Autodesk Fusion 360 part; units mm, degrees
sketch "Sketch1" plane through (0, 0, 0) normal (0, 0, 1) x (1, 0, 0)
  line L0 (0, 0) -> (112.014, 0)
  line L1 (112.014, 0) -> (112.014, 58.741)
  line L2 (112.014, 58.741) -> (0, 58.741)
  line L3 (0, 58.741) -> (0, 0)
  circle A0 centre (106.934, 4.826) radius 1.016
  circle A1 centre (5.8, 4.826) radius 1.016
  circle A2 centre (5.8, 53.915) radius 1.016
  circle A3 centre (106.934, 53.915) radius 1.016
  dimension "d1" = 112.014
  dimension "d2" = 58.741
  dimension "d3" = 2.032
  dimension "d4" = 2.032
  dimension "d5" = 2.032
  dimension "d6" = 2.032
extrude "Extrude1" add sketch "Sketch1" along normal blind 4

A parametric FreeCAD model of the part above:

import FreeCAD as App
import Part
import Sketcher
Q = App.Units.Quantity


def add_polygon(sketch, points):
    """Adds a closed chain of lines whose ends are joined by coincident constraints."""
    first, n = sketch.GeometryCount, len(points)
    for a, b in zip(points, points[1:] + points[:1]):
        sketch.addGeometry(Part.LineSegment(App.Vector(*a, 0), App.Vector(*b, 0)), False)
    for i in range(n):
        sketch.addConstraint(Sketcher.Constraint("Coincident", first + i, 2, first + (i + 1) % n, 1))

doc = App.newDocument("Part")
body = doc.addObject("PartDesign::Body", "Body")

sketch1 = doc.addObject("Sketcher::SketchObject", "Sketch")
body.addObject(sketch1)
sketch1.AttachmentSupport = (doc.XY_Plane, [""])
sketch1.MapMode = "FlatFace"
add_polygon(sketch1, [(0, 58.741), (0, 0), (112.014, 0), (112.014, 58.741)])
sketch1.addGeometry(Part.Circle(App.Vector(5.8, 4.826, 0), App.Vector(0, 0, 1), 1.016), False)
sketch1.addGeometry(Part.Circle(App.Vector(106.934, 4.826, 0), App.Vector(0, 0, 1), 1.016), False)
sketch1.addGeometry(Part.Circle(App.Vector(5.8, 53.915, 0), App.Vector(0, 0, 1), 1.016), False)
sketch1.addGeometry(Part.Circle(App.Vector(106.934, 53.915, 0), App.Vector(0, 0, 1), 1.016), False)
sketch1.addConstraint([
    Sketcher.Constraint("Vertical", 0),
    Sketcher.Constraint("Horizontal", 1),
    Sketcher.Constraint("Vertical", 2),
    Sketcher.Constraint("Horizontal", 3),
    Sketcher.Constraint("Coincident", 0, 2, -1, 1),
    Sketcher.Constraint("Equal", 4, 5),
    Sketcher.Constraint("Equal", 5, 6),
    Sketcher.Constraint("Equal", 6, 7),
    Sketcher.Constraint("Horizontal", 4, 3, 5, 3),
    Sketcher.Constraint("Horizontal", 6, 3, 7, 3),
    Sketcher.Constraint("Vertical", 4, 3, 6, 3),
    Sketcher.Constraint("Vertical", 5, 3, 7, 3),
    Sketcher.Constraint("Diameter", 4, Q("0.08 in")),
    Sketcher.Constraint("DistanceX", 1, 1, 1, 2, Q("4.41 in")),
    Sketcher.Constraint("DistanceY", 0, 2, 0, 1, Q("58.741 mm")),
    Sketcher.Constraint("DistanceX", 5, 3, 1, 2, Q("0.2 in")),
    Sketcher.Constraint("DistanceY", -1, 1, 4, 3, Q("0.19 in")),
    Sketcher.Constraint("DistanceY", 7, 3, 2, 2, Q("0.19 in")),
    Sketcher.Constraint("DistanceX", -1, 1, 4, 3, Q("5.8 mm")),
])
pad1 = doc.addObject("PartDesign::Pad", "Pad")
body.addObject(pad1)
pad1.Profile = sketch1
pad1.Length = 4

doc.recompute()
